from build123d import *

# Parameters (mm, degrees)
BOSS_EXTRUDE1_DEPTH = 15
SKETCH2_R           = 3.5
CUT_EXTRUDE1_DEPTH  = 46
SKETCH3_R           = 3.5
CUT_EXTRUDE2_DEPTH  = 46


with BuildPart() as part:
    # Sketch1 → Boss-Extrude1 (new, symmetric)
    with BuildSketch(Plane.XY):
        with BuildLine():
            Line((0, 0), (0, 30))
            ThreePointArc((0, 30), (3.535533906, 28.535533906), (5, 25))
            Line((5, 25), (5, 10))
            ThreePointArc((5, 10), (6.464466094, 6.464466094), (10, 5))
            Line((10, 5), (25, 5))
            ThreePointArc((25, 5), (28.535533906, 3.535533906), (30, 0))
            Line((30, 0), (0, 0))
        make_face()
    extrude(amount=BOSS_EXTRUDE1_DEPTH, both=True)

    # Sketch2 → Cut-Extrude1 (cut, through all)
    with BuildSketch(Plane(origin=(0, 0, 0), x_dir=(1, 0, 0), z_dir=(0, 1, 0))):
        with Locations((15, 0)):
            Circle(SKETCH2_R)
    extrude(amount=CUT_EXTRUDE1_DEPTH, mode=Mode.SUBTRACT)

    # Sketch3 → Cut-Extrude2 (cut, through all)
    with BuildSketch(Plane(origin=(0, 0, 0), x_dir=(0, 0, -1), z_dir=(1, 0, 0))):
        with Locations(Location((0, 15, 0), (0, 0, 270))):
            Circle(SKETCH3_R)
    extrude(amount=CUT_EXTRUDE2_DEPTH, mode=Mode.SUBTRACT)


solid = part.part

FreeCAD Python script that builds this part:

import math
import FreeCAD as App
import Part
import Sketcher

V = App.Vector
Q = App.Units.Quantity

doc = App.newDocument("Part")
body = doc.addObject("PartDesign::Body", "Body")

# Sketch on XY plane
sketch1 = doc.addObject("Sketcher::SketchObject", "Sketch")
body.addObject(sketch1)
sketch1.AttachmentSupport = (doc.XY_Plane, [""])
sketch1.MapMode = "FlatFace"
sketch1.addGeometry(Part.LineSegment(V(0, 30, 0), V(0, 0, 0)), False)
sketch1.addGeometry(Part.LineSegment(V(0, 0, 0), V(30, 0, 0)), False)
sketch1.addGeometry(Part.ArcOfCircle(Part.Circle(V(25, 0, 0), V(0, 0, 1), 5), math.radians(0), math.radians(90)), False)
sketch1.addGeometry(Part.LineSegment(V(25, 5, 0), V(10, 5, 0)), False)
sketch1.addGeometry(Part.ArcOfCircle(Part.Circle(V(10, 10, 0), V(0, 0, 1), 5), math.radians(180), math.radians(270)), False)
sketch1.addGeometry(Part.LineSegment(V(5, 10, 0), V(5, 25, 0)), False)
sketch1.addGeometry(Part.ArcOfCircle(Part.Circle(V(0, 25, 0), V(0, 0, 1), 5), math.radians(0), math.radians(90)), False)
sketch1.addConstraint(Sketcher.Constraint("Coincident", 0, 2, 1, 1))
sketch1.addConstraint(Sketcher.Constraint("Coincident", 1, 2, 2, 1))
sketch1.addConstraint(Sketcher.Constraint("Tangent", 2, 2, 3, 1))
sketch1.addConstraint(Sketcher.Constraint("Tangent", 3, 2, 4, 2))
sketch1.addConstraint(Sketcher.Constraint("Tangent", 4, 1, 5, 1))
sketch1.addConstraint(Sketcher.Constraint("Tangent", 5, 2, 6, 1))
sketch1.addConstraint(Sketcher.Constraint("Coincident", 6, 2, 0, 1))
sketch1.addConstraint(Sketcher.Constraint("Vertical", 0))
sketch1.addConstraint(Sketcher.Constraint("Horizontal", 1))
sketch1.addConstraint(Sketcher.Constraint("Horizontal", 3))
sketch1.addConstraint(Sketcher.Constraint("Vertical", 5))
sketch1.addConstraint(Sketcher.Constraint("Coincident", 0, 2, -1, 1))
sketch1.addConstraint(Sketcher.Constraint("Equal", 2, 4))
sketch1.addConstraint(Sketcher.Constraint("Equal", 4, 6))
sketch1.addConstraint(Sketcher.Constraint("PointOnObject", 2, 3, -1))
sketch1.addConstraint(Sketcher.Constraint("PointOnObject", 6, 3, -2))
sketch1.addConstraint(Sketcher.Constraint("Equal", 1, 0))
sketch1.addConstraint(Sketcher.Constraint("Radius", 2, Q("5 mm")))
sketch1.addConstraint(Sketcher.Constraint("DistanceX", 1, 1, 1, 2, Q("30 mm")))
pad1 = doc.addObject("PartDesign::Pad", "Pad")
body.addObject(pad1)
pad1.Profile = sketch1
pad1.Length = 30
pad1.Midplane = True

# Sketch on XZ plane
sketch2 = doc.addObject("Sketcher::SketchObject", "Sketch001")
body.addObject(sketch2)
sketch2.AttachmentSupport = (doc.XZ_Plane, [""])
sketch2.MapMode = "FlatFace"
sketch2.addGeometry(Part.Circle(V(15, 0, 0), V(0, 0, 1), 3.5), False)
sketch2.addConstraint(Sketcher.Constraint("PointOnObject", 0, 3, -1))
sketch2.addConstraint(Sketcher.Constraint("Diameter", 0, Q("7 mm")))
sketch2.addConstraint(Sketcher.Constraint("DistanceX", -1, 1, 0, 3, Q("15 mm")))
pocket1 = doc.addObject("PartDesign::Pocket", "Pocket")
body.addObject(pocket1)
pocket1.Profile = sketch2
pocket1.Type = "ThroughAll"

# Sketch on YZ plane
sketch3 = doc.addObject("Sketcher::SketchObject", "Sketch002")
body.addObject(sketch3)
sketch3.AttachmentSupport = (doc.YZ_Plane, [""])
sketch3.MapMode = "FlatFace"
sketch3.addGeometry(Part.Circle(V(15, 0, 0), V(0, 0, 1), 3.5), False)
sketch3.addConstraint(Sketcher.Constraint("PointOnObject", 0, 3, -1))
sketch3.addConstraint(Sketcher.Constraint("Diameter", 0, Q("7 mm")))
sketch3.addConstraint(Sketcher.Constraint("DistanceX", -1, 1, 0, 3, Q("15 mm")))
pocket2 = doc.addObject("PartDesign::Pocket", "Pocket001")
body.addObject(pocket2)
pocket2.Profile = sketch3
pocket2.Type = "ThroughAll"
pocket2.Reversed = True

doc.recompute()
